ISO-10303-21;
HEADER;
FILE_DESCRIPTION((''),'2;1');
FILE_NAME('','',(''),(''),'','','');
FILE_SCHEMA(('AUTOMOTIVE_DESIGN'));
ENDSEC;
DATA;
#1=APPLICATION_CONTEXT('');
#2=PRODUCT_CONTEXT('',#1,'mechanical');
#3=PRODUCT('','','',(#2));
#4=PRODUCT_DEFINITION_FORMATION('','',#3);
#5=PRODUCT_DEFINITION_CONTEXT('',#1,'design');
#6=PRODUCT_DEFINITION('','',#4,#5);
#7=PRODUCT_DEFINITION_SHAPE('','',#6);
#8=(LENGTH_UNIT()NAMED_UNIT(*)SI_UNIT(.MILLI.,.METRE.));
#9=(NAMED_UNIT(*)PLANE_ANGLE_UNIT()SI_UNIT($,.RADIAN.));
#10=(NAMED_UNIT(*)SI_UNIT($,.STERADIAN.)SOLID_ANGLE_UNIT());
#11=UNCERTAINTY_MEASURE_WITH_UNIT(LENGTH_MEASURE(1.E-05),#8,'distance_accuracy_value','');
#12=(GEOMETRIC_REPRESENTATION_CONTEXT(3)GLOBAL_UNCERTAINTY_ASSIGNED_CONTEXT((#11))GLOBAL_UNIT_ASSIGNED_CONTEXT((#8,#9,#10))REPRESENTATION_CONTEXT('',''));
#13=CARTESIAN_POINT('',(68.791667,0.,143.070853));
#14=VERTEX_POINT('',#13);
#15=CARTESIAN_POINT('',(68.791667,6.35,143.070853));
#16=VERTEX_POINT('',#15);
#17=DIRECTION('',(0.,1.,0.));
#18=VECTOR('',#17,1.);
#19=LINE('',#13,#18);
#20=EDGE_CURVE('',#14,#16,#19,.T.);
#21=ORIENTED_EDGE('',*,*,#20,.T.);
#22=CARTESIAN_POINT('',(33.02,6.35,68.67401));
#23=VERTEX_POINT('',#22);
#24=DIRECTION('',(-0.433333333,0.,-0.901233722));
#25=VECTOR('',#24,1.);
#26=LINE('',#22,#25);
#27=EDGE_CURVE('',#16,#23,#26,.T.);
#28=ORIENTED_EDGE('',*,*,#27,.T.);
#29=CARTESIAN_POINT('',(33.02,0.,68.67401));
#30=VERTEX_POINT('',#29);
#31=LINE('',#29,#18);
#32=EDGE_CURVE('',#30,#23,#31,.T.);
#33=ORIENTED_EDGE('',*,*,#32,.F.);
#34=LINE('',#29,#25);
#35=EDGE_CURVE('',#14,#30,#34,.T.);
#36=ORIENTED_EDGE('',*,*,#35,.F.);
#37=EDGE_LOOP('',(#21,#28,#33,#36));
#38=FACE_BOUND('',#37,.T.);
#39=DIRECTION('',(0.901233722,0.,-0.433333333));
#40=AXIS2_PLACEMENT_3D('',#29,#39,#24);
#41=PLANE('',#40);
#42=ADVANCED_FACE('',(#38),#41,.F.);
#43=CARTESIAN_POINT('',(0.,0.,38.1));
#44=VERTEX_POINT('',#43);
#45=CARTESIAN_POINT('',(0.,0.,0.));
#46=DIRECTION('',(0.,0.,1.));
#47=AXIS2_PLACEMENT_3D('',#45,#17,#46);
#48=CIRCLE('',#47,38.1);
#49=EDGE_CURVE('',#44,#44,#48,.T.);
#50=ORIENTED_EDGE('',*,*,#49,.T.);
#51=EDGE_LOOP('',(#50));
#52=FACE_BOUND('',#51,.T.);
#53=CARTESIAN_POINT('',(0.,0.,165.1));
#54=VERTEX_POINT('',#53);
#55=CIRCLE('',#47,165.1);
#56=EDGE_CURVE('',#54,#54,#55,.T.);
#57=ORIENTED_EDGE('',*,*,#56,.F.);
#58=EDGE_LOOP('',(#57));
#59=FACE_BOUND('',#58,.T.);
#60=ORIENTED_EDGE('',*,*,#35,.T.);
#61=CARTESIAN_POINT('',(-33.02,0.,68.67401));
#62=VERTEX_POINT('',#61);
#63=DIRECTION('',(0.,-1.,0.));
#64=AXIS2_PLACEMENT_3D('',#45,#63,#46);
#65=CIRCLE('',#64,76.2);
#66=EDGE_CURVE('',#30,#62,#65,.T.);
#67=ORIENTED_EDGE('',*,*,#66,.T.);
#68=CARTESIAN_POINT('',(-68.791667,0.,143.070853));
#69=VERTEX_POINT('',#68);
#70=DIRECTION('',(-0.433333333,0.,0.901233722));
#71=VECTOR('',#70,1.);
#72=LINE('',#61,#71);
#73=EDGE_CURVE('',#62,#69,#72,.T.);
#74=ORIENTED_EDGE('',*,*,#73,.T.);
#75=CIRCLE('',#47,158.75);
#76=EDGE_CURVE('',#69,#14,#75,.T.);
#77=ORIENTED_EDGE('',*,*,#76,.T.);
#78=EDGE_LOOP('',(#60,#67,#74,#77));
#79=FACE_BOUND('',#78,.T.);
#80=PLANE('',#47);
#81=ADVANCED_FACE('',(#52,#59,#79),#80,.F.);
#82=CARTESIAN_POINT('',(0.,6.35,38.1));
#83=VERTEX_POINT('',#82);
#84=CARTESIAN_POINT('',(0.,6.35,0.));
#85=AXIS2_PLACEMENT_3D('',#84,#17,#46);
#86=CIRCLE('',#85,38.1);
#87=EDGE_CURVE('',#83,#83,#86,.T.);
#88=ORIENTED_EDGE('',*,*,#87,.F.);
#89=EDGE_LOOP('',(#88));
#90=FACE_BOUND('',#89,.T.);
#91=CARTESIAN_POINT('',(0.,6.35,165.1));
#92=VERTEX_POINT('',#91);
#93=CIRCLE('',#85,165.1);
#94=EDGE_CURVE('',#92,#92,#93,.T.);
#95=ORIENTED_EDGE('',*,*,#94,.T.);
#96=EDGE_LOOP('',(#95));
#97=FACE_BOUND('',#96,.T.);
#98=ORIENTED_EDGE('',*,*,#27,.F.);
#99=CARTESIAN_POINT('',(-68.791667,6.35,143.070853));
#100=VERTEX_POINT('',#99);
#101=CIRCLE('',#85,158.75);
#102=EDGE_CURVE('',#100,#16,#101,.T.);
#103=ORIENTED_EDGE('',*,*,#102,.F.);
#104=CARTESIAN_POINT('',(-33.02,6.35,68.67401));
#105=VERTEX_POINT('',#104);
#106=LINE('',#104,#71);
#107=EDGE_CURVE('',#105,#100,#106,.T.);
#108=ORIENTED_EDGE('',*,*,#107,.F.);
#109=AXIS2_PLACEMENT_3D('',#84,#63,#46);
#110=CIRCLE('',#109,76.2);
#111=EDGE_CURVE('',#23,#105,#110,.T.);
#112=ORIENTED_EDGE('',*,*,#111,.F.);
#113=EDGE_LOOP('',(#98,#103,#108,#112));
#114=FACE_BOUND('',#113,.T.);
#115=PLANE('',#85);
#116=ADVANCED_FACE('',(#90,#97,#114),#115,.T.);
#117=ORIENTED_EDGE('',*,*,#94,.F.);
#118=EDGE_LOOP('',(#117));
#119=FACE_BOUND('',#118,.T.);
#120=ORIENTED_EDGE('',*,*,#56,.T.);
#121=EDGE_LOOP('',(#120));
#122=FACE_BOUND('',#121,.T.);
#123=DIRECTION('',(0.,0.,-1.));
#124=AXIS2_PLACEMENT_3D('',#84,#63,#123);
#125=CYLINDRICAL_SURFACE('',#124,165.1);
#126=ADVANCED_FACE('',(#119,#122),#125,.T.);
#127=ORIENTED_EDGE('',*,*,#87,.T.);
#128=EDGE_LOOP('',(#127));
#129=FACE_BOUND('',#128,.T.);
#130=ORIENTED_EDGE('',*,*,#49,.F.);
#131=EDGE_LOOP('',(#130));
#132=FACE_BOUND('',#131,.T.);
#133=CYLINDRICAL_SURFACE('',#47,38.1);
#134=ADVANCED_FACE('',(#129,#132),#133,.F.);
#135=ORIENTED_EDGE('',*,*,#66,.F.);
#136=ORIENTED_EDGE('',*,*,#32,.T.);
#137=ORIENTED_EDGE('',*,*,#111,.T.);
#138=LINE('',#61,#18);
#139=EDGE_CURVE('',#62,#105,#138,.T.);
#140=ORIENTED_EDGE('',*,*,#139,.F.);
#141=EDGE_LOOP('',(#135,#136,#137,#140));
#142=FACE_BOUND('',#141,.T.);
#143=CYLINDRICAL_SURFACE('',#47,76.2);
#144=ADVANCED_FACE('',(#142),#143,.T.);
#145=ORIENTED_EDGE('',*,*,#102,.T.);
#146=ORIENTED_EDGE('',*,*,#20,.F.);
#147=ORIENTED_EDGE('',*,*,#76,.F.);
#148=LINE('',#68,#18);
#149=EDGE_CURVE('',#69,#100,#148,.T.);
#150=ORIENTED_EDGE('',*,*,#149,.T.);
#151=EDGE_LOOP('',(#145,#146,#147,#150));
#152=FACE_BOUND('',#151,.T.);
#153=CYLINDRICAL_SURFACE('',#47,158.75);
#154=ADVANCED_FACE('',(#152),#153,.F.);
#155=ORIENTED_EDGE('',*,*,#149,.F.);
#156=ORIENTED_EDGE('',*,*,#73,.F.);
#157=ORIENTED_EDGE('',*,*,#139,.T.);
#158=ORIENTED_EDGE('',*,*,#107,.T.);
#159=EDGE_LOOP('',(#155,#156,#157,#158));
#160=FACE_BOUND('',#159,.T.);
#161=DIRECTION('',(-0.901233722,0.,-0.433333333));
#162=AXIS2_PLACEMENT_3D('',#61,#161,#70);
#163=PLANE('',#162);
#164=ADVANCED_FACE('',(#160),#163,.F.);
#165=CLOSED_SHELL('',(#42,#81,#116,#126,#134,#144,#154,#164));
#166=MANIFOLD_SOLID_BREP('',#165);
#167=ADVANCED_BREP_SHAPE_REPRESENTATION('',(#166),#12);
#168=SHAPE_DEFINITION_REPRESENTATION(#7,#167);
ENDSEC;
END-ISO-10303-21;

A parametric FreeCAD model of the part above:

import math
import FreeCAD as App
import Part
import Sketcher

V = App.Vector
Q = App.Units.Quantity

doc = App.newDocument("Part")
body = doc.addObject("PartDesign::Body", "Body")

# Sketch on XZ plane
sketch1 = body.newObject("Sketcher::SketchObject", "Sketch")
sketch1.AttachmentSupport = (doc.getObject("XZ_Plane"), [""])
sketch1.MapMode = "FlatFace"
sketch1.addGeometry(Part.Circle(V(0, 0, 0), V(0, 0, 1), 165.1), False)
sketch1.addConstraint([
    Sketcher.Constraint("Coincident", 0, 3, -1, 1),
    Sketcher.Constraint("Diameter", 0, Q("13 in")),
])
pad1 = body.newObject("PartDesign::Pad", "Pad")
pad1.Profile = sketch1
pad1.Length = Q("0.25 in")
pad1.Reversed = True

# Sketch on XZ plane
sketch2 = body.newObject("Sketcher::SketchObject", "Sketch001")
sketch2.AttachmentSupport = (doc.getObject("XZ_Plane"), [""])
sketch2.MapMode = "FlatFace"
sketch2.AttachmentOffset = App.Placement(V(0, 0, -0.25 * 25.4), App.Rotation())
sketch2.addGeometry(Part.Circle(V(0, 0, 0), V(0, 0, 1), 38.1), False)
sketch2.addConstraint([
    Sketcher.Constraint("Coincident", 0, 3, -1, 1),
    Sketcher.Constraint("Diameter", 0, Q("3 in")),
])
pocket1 = body.newObject("PartDesign::Pocket", "Pocket")
pocket1.Profile = sketch2
pocket1.Length = Q("0.25 in")
pocket1.Reversed = True

# Sketch on XZ plane
sketch3 = body.newObject("Sketcher::SketchObject", "Sketch002")
sketch3.AttachmentSupport = (doc.getObject("XZ_Plane"), [""])
sketch3.MapMode = "FlatFace"
sketch3.AttachmentOffset = App.Placement(V(0, 0, -0.25 * 25.4), App.Rotation())
sketch3.addGeometry([
    Part.LineSegment(V(-33.02, 68.67401, 0), V(-68.791667, 143.070853, 0)),
    Part.ArcOfCircle(Part.Circle(V(0, 0, 0), V(0, 0, 1), 158.75), math.radians(64.320711), math.radians(115.679289)),
    Part.LineSegment(V(68.791667, 143.070853, 0), V(33.02, 68.67401, 0)),
    Part.ArcOfCircle(Part.Circle(V(0, 0, 0), V(0, 0, 1), 76.2), math.radians(64.320711), math.radians(115.679289)),
], False)
sketch3.addConstraint([
    Sketcher.Constraint("Coincident", 0, 2, 1, 2),
    Sketcher.Constraint("Coincident", 1, 1, 2, 1),
    Sketcher.Constraint("Coincident", 2, 2, 3, 1),
    Sketcher.Constraint("Coincident", 3, 2, 0, 1),
    Sketcher.Constraint("Coincident", 1, 3, -1, 1),
    Sketcher.Constraint("Coincident", 3, 3, -1, 1),
    Sketcher.Constraint("Horizontal", 0, 2, 1, 1),
    Sketcher.Constraint("Horizontal", 2, 2, 3, 2),
    Sketcher.Constraint("Radius", 3, Q("3 in")),
    Sketcher.Constraint("Radius", 1, Q("6.25 in")),
    Sketcher.Constraint("DistanceX", -1, 1, 2, 2, Q("1.3 in")),
    Sketcher.Constraint("DistanceX", 0, 2, -1, 1, Q("68.791667 mm")),
])
pocket2 = body.newObject("PartDesign::Pocket", "Pocket001")
pocket2.Profile = sketch3
pocket2.Length = Q("0.25 in")
pocket2.Reversed = True

doc.recompute()
